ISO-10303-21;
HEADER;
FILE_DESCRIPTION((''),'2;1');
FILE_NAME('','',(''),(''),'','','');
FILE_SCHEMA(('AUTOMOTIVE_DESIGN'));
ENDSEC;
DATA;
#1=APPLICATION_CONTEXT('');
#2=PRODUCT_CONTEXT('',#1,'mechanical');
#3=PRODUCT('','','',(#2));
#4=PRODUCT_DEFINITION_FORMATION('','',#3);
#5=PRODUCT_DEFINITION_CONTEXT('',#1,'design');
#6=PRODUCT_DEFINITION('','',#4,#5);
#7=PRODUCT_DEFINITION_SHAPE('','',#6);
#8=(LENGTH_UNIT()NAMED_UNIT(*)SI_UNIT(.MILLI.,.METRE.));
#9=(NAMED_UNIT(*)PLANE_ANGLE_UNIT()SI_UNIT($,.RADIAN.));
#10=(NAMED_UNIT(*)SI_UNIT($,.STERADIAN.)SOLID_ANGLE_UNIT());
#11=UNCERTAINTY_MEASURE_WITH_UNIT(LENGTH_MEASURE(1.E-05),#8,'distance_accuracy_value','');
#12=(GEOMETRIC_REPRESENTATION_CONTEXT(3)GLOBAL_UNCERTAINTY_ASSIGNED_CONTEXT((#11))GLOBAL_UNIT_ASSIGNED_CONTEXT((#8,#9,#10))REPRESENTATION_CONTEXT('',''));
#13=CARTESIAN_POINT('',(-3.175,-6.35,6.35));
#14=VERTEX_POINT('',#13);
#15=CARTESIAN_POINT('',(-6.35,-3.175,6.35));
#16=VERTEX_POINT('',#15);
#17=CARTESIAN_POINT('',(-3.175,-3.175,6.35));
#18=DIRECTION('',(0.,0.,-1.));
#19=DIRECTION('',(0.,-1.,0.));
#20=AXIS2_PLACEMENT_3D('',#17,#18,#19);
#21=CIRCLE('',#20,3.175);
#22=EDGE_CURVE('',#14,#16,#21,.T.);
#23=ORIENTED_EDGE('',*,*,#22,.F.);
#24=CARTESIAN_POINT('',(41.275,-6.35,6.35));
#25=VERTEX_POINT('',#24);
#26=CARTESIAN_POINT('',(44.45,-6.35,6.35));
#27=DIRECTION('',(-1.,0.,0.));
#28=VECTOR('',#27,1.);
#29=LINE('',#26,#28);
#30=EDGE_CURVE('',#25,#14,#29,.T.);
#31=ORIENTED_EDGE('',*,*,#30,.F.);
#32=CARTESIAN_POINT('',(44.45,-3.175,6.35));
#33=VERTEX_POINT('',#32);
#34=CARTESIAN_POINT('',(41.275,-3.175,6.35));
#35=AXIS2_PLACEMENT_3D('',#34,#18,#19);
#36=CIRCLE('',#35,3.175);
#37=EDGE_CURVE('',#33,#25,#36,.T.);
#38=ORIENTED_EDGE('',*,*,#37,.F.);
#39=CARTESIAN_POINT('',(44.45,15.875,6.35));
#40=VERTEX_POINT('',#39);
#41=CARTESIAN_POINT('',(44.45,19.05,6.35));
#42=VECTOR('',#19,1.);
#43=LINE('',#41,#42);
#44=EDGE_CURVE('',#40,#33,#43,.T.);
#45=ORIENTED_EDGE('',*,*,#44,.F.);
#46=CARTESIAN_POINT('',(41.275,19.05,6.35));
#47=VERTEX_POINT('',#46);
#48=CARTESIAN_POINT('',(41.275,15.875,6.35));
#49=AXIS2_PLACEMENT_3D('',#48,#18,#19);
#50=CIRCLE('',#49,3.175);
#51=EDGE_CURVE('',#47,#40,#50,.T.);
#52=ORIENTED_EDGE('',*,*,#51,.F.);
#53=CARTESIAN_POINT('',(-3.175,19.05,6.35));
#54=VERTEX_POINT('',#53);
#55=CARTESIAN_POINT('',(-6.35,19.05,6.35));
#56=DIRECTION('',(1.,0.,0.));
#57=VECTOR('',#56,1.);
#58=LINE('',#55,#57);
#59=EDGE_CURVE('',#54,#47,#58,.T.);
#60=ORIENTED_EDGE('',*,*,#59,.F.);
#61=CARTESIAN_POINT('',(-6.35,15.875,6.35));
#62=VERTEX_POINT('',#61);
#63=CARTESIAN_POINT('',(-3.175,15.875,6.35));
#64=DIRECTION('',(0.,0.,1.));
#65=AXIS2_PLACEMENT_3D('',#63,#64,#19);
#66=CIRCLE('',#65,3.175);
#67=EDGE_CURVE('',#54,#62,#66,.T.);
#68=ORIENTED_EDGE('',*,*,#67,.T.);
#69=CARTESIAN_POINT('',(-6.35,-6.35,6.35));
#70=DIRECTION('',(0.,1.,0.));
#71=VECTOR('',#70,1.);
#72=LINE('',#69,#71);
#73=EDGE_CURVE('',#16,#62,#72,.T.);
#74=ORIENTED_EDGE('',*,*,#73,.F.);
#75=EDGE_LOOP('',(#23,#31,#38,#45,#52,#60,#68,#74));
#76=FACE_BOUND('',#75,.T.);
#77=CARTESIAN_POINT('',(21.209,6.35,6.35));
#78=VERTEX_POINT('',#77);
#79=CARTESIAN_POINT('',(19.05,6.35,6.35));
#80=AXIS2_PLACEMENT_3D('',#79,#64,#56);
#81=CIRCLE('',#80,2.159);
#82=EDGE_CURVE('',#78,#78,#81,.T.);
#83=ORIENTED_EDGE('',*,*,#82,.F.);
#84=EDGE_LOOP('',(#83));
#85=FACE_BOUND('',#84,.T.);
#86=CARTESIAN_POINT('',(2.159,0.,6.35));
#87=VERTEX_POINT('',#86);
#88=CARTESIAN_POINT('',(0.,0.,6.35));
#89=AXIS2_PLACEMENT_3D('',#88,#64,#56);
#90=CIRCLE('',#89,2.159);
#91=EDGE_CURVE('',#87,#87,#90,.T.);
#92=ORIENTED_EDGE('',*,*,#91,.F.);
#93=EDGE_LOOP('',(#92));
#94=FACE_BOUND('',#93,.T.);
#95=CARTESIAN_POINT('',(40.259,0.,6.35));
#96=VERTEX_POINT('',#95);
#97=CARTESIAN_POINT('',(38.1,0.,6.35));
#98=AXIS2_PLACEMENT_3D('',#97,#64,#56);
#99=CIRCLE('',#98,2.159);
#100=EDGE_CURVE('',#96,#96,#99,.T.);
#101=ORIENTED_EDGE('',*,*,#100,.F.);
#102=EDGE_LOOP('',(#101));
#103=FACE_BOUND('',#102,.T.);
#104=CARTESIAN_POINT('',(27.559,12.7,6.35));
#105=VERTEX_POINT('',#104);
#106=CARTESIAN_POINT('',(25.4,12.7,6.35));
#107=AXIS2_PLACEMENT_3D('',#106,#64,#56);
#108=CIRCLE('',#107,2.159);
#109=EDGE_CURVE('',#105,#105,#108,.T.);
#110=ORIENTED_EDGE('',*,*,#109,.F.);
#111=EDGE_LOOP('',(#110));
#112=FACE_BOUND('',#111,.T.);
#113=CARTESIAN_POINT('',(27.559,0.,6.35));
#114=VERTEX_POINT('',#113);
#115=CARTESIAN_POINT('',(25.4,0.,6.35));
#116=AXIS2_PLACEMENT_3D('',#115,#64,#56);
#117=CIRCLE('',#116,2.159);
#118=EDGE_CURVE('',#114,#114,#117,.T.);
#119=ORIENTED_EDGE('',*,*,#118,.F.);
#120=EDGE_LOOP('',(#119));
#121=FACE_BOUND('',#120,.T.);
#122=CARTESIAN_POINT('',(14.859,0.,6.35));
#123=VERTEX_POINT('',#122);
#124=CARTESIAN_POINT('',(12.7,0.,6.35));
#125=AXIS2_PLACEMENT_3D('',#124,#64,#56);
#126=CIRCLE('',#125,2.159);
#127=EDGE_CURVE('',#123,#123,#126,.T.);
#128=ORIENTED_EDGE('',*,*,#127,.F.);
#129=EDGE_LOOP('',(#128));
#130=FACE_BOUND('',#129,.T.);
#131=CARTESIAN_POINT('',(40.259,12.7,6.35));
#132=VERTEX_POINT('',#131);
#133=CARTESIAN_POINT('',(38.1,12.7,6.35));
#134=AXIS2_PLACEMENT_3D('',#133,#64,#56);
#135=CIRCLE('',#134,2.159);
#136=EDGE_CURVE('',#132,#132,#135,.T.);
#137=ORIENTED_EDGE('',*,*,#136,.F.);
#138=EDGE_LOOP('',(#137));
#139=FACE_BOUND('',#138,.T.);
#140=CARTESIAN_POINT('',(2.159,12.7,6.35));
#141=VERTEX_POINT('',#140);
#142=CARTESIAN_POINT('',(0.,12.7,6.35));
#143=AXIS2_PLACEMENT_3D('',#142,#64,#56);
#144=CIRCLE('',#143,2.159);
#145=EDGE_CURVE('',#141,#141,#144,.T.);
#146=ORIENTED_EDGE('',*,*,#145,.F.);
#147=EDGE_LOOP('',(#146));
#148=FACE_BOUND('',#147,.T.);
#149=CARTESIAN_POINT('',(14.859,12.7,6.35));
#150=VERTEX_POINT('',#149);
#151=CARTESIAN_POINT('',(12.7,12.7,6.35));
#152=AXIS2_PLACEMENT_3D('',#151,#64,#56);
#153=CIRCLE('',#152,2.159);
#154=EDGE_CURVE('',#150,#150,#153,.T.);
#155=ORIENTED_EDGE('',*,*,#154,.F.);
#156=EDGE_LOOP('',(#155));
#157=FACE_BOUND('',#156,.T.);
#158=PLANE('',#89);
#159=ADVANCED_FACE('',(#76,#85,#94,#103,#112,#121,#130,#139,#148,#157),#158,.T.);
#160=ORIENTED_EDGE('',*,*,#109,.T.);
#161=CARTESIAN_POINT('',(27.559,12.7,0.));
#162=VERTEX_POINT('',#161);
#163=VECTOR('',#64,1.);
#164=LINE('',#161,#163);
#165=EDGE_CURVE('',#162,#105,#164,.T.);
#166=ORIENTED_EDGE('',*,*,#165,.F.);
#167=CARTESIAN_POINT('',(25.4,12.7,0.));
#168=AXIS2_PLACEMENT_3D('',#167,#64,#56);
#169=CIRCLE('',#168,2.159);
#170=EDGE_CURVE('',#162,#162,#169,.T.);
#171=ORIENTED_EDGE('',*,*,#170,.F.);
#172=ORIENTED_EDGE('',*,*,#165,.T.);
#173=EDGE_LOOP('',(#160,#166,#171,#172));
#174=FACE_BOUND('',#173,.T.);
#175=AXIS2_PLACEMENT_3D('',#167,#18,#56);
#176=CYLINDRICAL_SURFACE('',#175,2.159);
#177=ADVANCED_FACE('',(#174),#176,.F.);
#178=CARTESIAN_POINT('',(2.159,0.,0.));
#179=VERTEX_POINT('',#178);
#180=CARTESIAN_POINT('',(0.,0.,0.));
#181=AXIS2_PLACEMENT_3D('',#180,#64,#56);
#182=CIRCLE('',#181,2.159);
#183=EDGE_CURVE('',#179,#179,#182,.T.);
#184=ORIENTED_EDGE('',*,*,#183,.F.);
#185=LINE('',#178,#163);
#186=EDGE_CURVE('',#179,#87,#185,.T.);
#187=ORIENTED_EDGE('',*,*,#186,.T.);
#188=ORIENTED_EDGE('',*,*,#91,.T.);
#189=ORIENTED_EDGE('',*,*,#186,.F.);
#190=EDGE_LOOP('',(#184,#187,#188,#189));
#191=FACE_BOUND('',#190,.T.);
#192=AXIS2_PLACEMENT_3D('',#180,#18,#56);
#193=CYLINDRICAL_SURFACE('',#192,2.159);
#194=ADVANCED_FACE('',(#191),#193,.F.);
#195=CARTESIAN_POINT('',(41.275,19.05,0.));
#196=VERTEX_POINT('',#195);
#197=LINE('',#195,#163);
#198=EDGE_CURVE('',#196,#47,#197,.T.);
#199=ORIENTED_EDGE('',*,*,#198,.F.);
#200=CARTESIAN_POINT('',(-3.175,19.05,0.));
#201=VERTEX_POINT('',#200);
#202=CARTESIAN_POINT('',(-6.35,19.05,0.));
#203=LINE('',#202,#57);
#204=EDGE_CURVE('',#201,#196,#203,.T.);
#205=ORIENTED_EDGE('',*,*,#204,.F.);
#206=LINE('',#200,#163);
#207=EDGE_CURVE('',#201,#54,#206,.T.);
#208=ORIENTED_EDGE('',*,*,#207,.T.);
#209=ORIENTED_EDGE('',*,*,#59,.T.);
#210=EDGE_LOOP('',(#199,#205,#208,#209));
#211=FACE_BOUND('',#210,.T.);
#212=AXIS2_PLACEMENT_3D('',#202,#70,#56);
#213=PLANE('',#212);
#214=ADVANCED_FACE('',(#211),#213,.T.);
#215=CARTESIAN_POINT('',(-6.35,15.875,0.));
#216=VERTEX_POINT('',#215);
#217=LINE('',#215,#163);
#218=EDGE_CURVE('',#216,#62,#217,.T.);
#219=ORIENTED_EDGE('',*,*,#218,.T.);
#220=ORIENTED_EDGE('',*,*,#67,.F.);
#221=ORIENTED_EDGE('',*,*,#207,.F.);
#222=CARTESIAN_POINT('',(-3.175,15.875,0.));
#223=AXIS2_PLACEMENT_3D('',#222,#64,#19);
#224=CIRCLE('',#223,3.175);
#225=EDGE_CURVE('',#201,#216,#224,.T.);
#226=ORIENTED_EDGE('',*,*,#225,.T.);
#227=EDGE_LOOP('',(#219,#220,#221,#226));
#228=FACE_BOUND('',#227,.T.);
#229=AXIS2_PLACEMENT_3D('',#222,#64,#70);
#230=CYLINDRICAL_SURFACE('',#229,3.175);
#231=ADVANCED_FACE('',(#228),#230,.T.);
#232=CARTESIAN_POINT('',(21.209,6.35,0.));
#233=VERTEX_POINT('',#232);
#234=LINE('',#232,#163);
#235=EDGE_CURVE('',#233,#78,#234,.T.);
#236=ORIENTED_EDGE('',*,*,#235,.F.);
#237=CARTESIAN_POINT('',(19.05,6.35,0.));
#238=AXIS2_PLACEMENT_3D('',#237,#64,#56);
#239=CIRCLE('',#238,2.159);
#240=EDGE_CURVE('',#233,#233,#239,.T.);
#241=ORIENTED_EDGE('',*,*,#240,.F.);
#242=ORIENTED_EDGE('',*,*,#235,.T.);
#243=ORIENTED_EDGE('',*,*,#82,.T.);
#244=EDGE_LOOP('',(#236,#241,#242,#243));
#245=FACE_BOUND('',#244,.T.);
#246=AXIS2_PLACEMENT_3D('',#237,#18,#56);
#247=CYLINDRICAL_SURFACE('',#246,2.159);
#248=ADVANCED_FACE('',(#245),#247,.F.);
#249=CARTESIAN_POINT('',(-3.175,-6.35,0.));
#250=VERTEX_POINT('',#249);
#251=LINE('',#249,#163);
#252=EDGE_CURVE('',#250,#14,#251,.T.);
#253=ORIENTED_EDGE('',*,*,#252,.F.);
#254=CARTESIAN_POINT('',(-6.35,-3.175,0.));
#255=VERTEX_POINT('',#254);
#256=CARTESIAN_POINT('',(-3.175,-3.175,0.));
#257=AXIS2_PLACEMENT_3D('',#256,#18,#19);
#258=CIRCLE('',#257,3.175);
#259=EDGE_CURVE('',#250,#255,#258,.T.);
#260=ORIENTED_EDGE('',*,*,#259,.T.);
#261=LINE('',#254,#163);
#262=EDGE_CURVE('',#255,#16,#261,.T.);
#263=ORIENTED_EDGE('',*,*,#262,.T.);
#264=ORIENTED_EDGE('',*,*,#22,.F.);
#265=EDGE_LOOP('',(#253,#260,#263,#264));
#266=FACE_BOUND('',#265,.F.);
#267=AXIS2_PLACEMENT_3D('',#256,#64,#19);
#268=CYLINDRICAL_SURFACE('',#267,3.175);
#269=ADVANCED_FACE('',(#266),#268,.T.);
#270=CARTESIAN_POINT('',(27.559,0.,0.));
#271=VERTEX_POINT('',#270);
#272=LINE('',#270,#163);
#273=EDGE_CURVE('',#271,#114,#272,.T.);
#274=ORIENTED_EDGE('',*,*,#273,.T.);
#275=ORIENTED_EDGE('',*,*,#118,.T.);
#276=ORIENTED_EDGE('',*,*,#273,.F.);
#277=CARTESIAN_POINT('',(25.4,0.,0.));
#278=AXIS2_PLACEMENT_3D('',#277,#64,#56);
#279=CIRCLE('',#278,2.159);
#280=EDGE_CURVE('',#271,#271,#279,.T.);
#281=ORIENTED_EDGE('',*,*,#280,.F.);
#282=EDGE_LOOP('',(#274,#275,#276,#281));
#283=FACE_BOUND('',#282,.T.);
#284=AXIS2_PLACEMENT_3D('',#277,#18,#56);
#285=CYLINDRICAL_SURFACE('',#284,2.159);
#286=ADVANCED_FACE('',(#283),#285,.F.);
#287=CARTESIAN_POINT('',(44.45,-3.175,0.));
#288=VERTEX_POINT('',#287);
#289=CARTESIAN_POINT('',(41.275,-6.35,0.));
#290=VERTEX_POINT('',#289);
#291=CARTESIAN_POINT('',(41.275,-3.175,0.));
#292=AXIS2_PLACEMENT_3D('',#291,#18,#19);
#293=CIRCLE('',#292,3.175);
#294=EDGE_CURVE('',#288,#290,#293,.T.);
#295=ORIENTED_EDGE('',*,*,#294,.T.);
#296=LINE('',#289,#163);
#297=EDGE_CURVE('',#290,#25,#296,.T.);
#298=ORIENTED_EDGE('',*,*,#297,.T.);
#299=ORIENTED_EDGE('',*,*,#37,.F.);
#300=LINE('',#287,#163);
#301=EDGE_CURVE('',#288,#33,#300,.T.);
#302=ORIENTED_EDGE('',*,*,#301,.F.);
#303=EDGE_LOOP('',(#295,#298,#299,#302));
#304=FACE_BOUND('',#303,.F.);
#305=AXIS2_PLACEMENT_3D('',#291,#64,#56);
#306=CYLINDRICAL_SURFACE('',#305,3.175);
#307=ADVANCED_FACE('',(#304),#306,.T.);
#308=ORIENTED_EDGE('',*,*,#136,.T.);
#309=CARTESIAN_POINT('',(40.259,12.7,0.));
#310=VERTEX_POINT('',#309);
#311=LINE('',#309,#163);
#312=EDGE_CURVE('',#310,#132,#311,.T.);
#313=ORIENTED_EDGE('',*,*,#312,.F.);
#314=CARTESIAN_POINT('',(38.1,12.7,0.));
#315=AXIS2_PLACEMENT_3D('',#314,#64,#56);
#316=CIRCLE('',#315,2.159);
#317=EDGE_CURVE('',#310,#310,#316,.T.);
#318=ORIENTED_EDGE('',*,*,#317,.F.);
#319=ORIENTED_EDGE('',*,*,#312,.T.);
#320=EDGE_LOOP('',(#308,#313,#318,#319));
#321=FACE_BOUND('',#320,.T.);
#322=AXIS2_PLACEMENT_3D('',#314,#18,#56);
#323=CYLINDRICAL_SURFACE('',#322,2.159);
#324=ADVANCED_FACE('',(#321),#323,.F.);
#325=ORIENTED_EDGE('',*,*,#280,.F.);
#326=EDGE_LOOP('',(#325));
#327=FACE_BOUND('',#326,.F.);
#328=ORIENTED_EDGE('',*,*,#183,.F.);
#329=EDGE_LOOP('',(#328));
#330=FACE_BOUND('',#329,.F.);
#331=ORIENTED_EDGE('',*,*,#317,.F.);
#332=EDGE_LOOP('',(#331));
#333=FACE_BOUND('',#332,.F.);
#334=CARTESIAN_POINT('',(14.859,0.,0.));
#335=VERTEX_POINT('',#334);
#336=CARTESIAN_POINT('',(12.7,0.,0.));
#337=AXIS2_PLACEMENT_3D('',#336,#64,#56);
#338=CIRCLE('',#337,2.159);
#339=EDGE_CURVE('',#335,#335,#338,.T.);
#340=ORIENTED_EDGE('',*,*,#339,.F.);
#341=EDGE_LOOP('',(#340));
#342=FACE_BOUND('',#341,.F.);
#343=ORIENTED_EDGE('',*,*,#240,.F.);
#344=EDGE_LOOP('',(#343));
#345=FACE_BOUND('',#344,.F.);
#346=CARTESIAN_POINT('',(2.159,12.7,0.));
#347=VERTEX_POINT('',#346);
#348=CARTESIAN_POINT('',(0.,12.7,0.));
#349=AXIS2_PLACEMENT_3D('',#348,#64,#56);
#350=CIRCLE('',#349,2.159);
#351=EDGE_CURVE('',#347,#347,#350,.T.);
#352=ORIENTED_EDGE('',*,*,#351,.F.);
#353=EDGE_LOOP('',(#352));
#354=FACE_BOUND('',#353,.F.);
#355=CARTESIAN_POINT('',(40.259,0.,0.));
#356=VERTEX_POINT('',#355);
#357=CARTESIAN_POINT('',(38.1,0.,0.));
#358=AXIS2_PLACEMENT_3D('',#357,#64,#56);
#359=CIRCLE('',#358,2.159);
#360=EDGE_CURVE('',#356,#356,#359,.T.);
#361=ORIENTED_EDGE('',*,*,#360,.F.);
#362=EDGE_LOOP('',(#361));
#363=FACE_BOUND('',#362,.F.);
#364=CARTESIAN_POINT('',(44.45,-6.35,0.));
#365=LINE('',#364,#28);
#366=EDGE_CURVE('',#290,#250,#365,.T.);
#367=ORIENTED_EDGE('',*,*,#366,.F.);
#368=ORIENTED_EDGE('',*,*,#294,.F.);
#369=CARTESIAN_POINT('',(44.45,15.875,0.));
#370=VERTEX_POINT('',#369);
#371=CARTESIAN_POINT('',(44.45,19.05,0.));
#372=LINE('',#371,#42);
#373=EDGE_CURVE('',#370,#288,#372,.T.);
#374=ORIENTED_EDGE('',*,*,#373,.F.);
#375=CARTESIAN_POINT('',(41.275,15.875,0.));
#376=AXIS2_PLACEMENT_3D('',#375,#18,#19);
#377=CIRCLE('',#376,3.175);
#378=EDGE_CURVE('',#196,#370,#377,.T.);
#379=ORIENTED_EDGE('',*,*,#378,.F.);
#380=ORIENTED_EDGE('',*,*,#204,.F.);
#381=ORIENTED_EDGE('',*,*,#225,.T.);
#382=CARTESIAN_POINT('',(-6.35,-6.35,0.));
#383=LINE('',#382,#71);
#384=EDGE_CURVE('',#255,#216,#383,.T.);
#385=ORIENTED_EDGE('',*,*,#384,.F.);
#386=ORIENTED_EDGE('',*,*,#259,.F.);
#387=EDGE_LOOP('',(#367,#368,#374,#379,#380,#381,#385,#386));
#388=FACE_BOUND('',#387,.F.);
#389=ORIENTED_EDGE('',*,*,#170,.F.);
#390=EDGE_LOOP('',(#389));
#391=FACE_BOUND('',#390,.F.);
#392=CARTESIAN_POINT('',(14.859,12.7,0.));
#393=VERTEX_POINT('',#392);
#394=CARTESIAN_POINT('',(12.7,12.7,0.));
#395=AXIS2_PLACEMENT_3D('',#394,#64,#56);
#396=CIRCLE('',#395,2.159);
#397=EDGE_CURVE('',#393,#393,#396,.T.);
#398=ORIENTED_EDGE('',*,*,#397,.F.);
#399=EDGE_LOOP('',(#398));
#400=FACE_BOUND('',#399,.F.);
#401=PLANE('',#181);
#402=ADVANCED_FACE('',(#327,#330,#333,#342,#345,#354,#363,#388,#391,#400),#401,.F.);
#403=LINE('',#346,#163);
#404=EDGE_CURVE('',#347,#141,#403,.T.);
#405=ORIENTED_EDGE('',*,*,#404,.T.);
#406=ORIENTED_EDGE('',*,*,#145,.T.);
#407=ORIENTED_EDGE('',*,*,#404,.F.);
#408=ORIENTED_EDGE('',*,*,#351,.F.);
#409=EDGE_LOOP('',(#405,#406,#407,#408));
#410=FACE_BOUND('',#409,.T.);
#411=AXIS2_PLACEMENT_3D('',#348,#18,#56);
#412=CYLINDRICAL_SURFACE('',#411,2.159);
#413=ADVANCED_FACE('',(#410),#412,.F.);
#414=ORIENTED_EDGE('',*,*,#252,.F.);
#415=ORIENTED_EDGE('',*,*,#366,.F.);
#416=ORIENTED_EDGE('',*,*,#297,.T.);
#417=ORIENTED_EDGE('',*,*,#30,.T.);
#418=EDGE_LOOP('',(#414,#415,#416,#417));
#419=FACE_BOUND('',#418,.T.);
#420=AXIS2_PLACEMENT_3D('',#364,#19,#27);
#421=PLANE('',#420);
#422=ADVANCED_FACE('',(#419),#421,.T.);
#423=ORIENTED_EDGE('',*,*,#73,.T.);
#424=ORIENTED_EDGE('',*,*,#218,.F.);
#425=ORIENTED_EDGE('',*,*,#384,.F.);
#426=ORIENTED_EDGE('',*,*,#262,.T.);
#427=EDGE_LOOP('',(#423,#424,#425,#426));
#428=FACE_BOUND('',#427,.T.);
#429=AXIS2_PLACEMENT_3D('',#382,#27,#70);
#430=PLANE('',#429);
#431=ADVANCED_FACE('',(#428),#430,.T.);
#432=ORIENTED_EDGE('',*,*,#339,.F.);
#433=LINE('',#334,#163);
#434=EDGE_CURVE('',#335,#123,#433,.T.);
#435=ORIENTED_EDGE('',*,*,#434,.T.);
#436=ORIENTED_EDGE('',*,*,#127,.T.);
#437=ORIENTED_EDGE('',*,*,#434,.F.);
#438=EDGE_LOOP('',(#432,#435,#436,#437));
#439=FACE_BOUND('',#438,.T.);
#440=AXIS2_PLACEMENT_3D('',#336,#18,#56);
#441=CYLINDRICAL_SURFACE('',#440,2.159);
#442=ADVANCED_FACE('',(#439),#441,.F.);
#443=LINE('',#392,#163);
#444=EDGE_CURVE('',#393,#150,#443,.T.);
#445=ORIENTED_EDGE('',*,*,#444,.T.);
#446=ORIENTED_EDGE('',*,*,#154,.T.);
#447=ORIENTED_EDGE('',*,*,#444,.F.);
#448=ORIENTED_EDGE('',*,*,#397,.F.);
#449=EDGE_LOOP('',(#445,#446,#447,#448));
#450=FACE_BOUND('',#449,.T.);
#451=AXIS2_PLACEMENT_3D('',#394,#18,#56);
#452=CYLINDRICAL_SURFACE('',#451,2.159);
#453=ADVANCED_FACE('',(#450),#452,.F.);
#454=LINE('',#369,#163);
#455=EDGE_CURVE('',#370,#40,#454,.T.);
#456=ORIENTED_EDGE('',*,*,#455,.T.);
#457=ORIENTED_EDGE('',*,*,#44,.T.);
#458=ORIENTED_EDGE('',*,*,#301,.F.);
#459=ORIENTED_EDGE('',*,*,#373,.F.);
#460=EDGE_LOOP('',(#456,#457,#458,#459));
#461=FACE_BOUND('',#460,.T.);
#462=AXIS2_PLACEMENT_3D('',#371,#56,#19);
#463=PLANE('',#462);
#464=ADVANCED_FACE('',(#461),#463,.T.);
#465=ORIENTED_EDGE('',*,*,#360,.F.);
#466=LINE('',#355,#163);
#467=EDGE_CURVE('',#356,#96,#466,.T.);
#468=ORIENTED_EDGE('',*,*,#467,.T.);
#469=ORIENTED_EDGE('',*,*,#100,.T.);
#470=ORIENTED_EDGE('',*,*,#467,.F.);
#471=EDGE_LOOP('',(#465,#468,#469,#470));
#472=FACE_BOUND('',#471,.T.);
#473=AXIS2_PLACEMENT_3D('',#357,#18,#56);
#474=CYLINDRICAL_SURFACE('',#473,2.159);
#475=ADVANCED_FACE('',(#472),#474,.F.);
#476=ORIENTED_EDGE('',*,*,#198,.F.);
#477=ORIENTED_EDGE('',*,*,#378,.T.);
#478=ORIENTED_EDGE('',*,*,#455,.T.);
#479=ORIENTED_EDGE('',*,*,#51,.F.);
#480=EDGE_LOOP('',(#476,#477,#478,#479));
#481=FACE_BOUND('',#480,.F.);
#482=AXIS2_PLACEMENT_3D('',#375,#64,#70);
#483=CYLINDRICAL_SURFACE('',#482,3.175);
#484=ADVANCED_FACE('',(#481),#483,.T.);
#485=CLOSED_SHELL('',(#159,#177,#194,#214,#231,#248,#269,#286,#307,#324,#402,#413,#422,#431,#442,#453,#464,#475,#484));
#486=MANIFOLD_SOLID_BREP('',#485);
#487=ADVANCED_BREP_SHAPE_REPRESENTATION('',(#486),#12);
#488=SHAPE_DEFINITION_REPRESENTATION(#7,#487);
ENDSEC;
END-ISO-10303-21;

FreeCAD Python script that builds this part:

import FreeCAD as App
import Part
import Sketcher
from FreeCAD import Vector
Q = App.Units.Quantity


def edges_at(feature, points):
    """Names of the edges that pass closest to the given points."""
    edges = feature.Shape.Edges
    near = lambda p: min(range(len(edges)), key=lambda i: edges[i].distToShape(Part.Vertex(*p))[0])
    return sorted({f"Edge{near(p) + 1}" for p in points})

doc = App.newDocument("Part")
body = doc.addObject("PartDesign::Body", "Body")

sketch1 = body.newObject("Sketcher::SketchObject", "Sketch")
sketch1.AttachmentSupport = (doc.getObject("XY_Plane"), [""])
sketch1.MapMode = "FlatFace"
sketch1.addGeometry([
    Part.LineSegment(Vector(44.5, 19.1, 0), Vector(-6.3, 19.1, 0)),
    Part.LineSegment(Vector(-6.3, 19.1, 0), Vector(-6.3, -6.3, 0)),
    Part.LineSegment(Vector(-6.3, -6.3, 0), Vector(44.5, -6.3, 0)),
    Part.LineSegment(Vector(44.5, -6.3, 0), Vector(44.5, 19.1, 0)),
    Part.Circle(Vector(0, 0, 0), Vector(0, 0, 1), 2.2),
    Part.Circle(Vector(12.7, 0, 0), Vector(0, 0, 1), 2.2),
    Part.Circle(Vector(25.4, 0, 0), Vector(0, 0, 1), 2.2),
    Part.Circle(Vector(38.1, 0, 0), Vector(0, 0, 1), 2.2),
    Part.Circle(Vector(19.1, 6.3, 0), Vector(0, 0, 1), 2.2),
    Part.Circle(Vector(0, 12.7, 0), Vector(0, 0, 1), 2.2),
    Part.Circle(Vector(12.7, 12.7, 0), Vector(0, 0, 1), 2.2),
    Part.Circle(Vector(25.4, 12.7, 0), Vector(0, 0, 1), 2.2),
    Part.Circle(Vector(38.1, 12.7, 0), Vector(0, 0, 1), 2.2),
], False)
sketch1.addConstraint([
    Sketcher.Constraint("Coincident", 0, 2, 1, 1),
    Sketcher.Constraint("Coincident", 1, 2, 2, 1),
    Sketcher.Constraint("Coincident", 2, 2, 3, 1),
    Sketcher.Constraint("Coincident", 3, 2, 0, 1),
    Sketcher.Constraint("Horizontal", 0),
    Sketcher.Constraint("Vertical", 1),
    Sketcher.Constraint("Horizontal", 2),
    Sketcher.Constraint("Vertical", 3),
    Sketcher.Constraint("Coincident", 4, 3, -1, 1),
    Sketcher.Constraint("Equal", 4, 5),
    Sketcher.Constraint("Equal", 5, 6),
    Sketcher.Constraint("Equal", 6, 7),
    Sketcher.Constraint("Equal", 7, 8),
    Sketcher.Constraint("Equal", 8, 9),
    Sketcher.Constraint("Equal", 9, 10),
    Sketcher.Constraint("Equal", 10, 11),
    Sketcher.Constraint("Equal", 11, 12),
    Sketcher.Constraint("PointOnObject", 5, 3, -1),
    Sketcher.Constraint("PointOnObject", 6, 3, -1),
    Sketcher.Constraint("PointOnObject", 7, 3, -1),
    Sketcher.Constraint("PointOnObject", 9, 3, -2),
    Sketcher.Constraint("Horizontal", 9, 3, 10, 3),
    Sketcher.Constraint("Horizontal", 10, 3, 11, 3),
    Sketcher.Constraint("Horizontal", 11, 3, 12, 3),
    Sketcher.Constraint("Vertical", 5, 3, 10, 3),
    Sketcher.Constraint("Vertical", 6, 3, 11, 3),
    Sketcher.Constraint("Vertical", 7, 3, 12, 3),
    Sketcher.Constraint("Diameter", 4, Q("0.17 in")),
    Sketcher.Constraint("DistanceY", 1, 2, 1, 1, Q("1 in")),
    Sketcher.Constraint("DistanceX", -1, 1, 6, 3, Q("1 in")),
    Sketcher.Constraint("DistanceX", 5, 3, 7, 3, Q("1 in")),
    Sketcher.Constraint("DistanceX", 0, 2, 8, 3, Q("1 in")),
    Sketcher.Constraint("DistanceX", 8, 3, 2, 2, Q("1 in")),
    Sketcher.Constraint("DistanceX", -1, 1, 5, 3, Q("0.5 in")),
    Sketcher.Constraint("DistanceY", -1, 1, 9, 3, Q("0.5 in")),
    Sketcher.Constraint("DistanceY", 8, 3, 0, 2, Q("0.5 in")),
    Sketcher.Constraint("DistanceX", -1, 1, 8, 3, Q("0.75 in")),
    Sketcher.Constraint("DistanceY", -1, 1, 8, 3, Q("0.25 in")),
])
pad1 = body.newObject("PartDesign::Pad", "Pad")
pad1.Profile = sketch1
pad1.Length = Q("0.25 in")
doc.recompute()

fillet = body.newObject("PartDesign::Fillet", "Fillet")
fillet.Base = (pad1, edges_at(pad1, [
    (44.45, 19.05, 3.175),
    (44.45, -6.35, 3.175),
    (-6.35, -6.35, 3.175),
    (-6.35, 19.05, 3.175),
]))
fillet.Radius = Q("0.125 in")

doc.recompute()
